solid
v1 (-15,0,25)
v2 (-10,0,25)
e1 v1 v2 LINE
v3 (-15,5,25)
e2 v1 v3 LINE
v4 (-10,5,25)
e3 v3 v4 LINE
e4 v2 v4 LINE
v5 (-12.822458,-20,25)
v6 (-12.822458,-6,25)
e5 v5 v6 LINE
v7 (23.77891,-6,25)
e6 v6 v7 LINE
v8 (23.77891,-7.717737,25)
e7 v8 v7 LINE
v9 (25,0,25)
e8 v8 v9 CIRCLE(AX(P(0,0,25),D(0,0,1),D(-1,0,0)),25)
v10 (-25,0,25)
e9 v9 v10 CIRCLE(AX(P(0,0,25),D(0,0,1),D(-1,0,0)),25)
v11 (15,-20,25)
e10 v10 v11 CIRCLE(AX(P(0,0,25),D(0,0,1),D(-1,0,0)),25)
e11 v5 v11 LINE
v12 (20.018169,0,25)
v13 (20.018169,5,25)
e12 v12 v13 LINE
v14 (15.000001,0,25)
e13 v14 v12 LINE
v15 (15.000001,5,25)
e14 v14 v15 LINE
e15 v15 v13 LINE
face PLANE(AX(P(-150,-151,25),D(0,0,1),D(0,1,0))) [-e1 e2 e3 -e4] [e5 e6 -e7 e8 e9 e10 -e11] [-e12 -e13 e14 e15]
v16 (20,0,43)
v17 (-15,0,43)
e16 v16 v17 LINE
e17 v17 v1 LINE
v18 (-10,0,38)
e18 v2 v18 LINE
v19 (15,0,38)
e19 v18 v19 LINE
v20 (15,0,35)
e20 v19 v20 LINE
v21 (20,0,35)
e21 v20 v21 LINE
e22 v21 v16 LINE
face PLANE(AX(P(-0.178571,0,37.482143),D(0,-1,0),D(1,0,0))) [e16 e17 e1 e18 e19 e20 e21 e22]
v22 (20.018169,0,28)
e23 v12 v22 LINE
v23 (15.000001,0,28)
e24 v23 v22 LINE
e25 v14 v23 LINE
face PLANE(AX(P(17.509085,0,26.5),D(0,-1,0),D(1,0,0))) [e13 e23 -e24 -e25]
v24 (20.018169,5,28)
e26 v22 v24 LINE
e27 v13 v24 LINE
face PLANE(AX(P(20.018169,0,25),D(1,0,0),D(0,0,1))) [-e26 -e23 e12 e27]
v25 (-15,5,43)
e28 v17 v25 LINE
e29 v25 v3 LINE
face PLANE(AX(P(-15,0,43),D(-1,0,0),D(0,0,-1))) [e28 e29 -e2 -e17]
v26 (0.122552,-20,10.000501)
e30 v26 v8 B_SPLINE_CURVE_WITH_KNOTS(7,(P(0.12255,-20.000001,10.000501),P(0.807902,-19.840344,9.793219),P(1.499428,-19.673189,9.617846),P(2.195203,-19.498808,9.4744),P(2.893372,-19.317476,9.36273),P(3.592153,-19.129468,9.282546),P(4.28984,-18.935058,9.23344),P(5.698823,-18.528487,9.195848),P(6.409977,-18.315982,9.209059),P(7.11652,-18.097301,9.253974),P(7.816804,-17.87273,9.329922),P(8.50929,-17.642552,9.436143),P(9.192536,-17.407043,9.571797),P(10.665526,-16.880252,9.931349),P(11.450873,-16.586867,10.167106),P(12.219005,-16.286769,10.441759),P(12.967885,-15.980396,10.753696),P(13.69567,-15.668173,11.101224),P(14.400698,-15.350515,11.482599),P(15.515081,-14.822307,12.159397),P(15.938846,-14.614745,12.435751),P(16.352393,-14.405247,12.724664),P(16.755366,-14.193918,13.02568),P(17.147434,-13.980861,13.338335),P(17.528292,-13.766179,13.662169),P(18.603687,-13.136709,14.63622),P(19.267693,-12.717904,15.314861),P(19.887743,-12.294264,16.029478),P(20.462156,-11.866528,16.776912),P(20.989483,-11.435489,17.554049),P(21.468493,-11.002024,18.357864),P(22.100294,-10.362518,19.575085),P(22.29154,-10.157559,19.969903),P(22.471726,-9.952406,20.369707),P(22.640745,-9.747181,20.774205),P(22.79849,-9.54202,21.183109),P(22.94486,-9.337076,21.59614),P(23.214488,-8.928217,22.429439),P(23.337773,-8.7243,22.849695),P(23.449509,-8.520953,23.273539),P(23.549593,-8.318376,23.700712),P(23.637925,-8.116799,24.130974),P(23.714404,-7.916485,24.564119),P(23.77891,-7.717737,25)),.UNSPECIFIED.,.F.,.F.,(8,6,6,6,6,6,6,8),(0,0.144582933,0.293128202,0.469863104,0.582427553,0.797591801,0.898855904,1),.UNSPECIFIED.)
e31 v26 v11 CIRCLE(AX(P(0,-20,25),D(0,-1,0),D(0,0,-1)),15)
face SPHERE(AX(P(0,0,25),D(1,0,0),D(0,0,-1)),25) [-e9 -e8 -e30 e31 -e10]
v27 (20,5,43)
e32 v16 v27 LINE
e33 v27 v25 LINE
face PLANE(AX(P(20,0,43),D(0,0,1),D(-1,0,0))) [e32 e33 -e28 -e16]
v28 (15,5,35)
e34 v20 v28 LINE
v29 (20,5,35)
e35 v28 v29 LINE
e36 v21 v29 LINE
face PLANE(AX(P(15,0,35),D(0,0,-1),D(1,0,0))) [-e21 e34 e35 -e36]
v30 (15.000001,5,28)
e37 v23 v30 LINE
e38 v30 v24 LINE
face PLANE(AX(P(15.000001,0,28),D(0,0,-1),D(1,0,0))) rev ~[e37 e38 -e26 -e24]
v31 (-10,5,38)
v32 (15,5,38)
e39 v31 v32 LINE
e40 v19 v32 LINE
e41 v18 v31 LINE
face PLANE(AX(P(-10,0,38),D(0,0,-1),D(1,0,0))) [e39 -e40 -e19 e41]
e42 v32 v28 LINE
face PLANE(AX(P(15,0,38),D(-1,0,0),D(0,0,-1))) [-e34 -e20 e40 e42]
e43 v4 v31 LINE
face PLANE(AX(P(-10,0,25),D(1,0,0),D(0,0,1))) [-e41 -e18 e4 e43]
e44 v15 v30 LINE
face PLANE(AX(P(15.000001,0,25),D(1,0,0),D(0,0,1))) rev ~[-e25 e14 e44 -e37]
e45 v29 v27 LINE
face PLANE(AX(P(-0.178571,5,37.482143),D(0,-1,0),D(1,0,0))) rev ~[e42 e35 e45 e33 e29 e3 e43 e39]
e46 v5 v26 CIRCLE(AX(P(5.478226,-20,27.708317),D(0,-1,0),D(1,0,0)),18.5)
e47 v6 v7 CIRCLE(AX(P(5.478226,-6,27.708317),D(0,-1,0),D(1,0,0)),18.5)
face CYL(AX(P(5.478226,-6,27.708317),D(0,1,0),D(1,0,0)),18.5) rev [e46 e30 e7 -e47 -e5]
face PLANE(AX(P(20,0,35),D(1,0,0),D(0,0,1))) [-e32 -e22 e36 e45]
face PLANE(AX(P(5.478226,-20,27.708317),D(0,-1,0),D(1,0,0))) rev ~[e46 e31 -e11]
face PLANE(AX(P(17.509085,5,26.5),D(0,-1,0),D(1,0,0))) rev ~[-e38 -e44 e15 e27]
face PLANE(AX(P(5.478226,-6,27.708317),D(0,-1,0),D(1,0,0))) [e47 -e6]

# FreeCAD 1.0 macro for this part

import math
import FreeCAD as App
import Part
import Sketcher

doc = App.newDocument("Part")
params = doc.addObject("Spreadsheet::Sheet", "Params")
for row, (alias, value) in enumerate([
    ("sketch1_diameter", "37 mm"),
    ("pad1_length", "14 mm"),
    ("sketch2_height", "3 mm"),
    ("pad2_length", "5 mm"),
    ("sketch3_width", "210 mm"),
    ("sketch3_height", "320 mm"),
    ("pad3_length", "320 mm"),
    ("sketch4_radius", "150 mm"),
    ("revolution_angle", "360 deg"),
    ("sketch5_radius", "25 mm"),
    ("revolution2_angle", "360 deg"),
    ("sketch6_width", "25 mm"),
    ("sketch6_width2", "5 mm"),
    ("sketch6_height", "3 mm"),
    ("sketch6_height2", "8 mm"),
    ("sketch6_height3", "18 mm"),
    ("pad4_length", "5 mm"),
], start=1):
    params.set(f"A{row}", alias)
    params.set(f"B{row}", "=" + value)
    params.setAlias(f"B{row}", alias)

body = doc.addObject("PartDesign::Body", "Body")

sketch1 = body.newObject("Sketcher::SketchObject", "Sketch")
sketch1.AttachmentSupport = (doc.getObject("XY_Plane"), [""])
sketch1.MapMode = "FlatFace"
sketch1.addGeometry(Part.Circle(App.Vector(53, 37, 0), App.Vector(0, 0, 1), 18), False)
sketch1.addConstraint(Sketcher.Constraint("Diameter", 0, 37.0))
sketch1.addConstraint(Sketcher.Constraint("DistanceX", -1, 1, 0, 3, 53.478226))
sketch1.addConstraint(Sketcher.Constraint("DistanceY", -1, 1, 0, 3, 36.958317))
sketch1.setExpression("Constraints[0]", "Params.sketch1_diameter")
pad1 = body.newObject("PartDesign::Pad", "Pad")
pad1.Profile = sketch1
pad1.setExpression("Length", "Params.pad1_length")
body2 = doc.addObject("PartDesign::Body", "Body001")
doc.recompute()

body.Placement = App.Placement(App.Vector(-48, -6, -9.25), App.Rotation(App.Vector(1, 0, 0), 90))
boolean = body2.newObject("PartDesign::Boolean", "Boolean")
boolean.Type = "Fuse"
boolean.addObjects([body])
body3 = doc.addObject("PartDesign::Body", "Body002")

sketch2 = body3.newObject("Sketcher::SketchObject", "Sketch001")
sketch2.AttachmentSupport = (doc.getObject("XZ_Plane002"), [""])
sketch2.MapMode = "FlatFace"
sketch2.addGeometry(Part.LineSegment(App.Vector(25, -10, 0), App.Vector(25, -13, 0)), False)
sketch2.addGeometry(Part.LineSegment(App.Vector(25, -13, 0), App.Vector(30, -13, 0)), False)
sketch2.addGeometry(Part.LineSegment(App.Vector(30, -13, 0), App.Vector(30, -10, 0)), False)
sketch2.addGeometry(Part.LineSegment(App.Vector(30, -10, 0), App.Vector(25, -10, 0)), False)
sketch2.addConstraint(Sketcher.Constraint("Coincident", 0, 2, 1, 1))
sketch2.addConstraint(Sketcher.Constraint("Coincident", 1, 2, 2, 1))
sketch2.addConstraint(Sketcher.Constraint("Coincident", 2, 2, 3, 1))
sketch2.addConstraint(Sketcher.Constraint("Coincident", 3, 2, 0, 1))
sketch2.addConstraint(Sketcher.Constraint("Vertical", 0))
sketch2.addConstraint(Sketcher.Constraint("Horizontal", 1))
sketch2.addConstraint(Sketcher.Constraint("Vertical", 2))
sketch2.addConstraint(Sketcher.Constraint("Horizontal", 3))
sketch2.addConstraint(Sketcher.Constraint("DistanceY", 0, 2, 0, 1, 3.0))
sketch2.addConstraint(Sketcher.Constraint("DistanceX", -1, 1, 0, 2, 25.0))
sketch2.addConstraint(Sketcher.Constraint("DistanceY", 0, 2, -1, 1, 13.0))
sketch2.addConstraint(Sketcher.Constraint("DistanceX", 1, 1, 1, 2, 5.018169))
sketch2.setExpression("Constraints[8]", "Params.sketch2_height")
pad2 = body3.newObject("PartDesign::Pad", "Pad001")
pad2.Profile = sketch2
pad2.setExpression("Length", "Params.pad2_length")
pad2.Reversed = True
body4 = doc.addObject("PartDesign::Body", "Body003")

sketch3 = body4.newObject("Sketcher::SketchObject", "Sketch002")
sketch3.AttachmentSupport = (doc.getObject("XY_Plane003"), [""])
sketch3.MapMode = "FlatFace"
sketch3.AttachmentOffset = App.Placement(App.Vector(0, 0, -150), App.Rotation())
sketch3.addGeometry(Part.LineSegment(App.Vector(0, 169, 0), App.Vector(0, -151, 0)), False)
sketch3.addGeometry(Part.LineSegment(App.Vector(0, -151, 0), App.Vector(210, -151, 0)), False)
sketch3.addGeometry(Part.LineSegment(App.Vector(210, -151, 0), App.Vector(210, 169, 0)), False)
sketch3.addGeometry(Part.LineSegment(App.Vector(210, 169, 0), App.Vector(0, 169, 0)), False)
sketch3.addConstraint(Sketcher.Constraint("Coincident", 0, 2, 1, 1))
sketch3.addConstraint(Sketcher.Constraint("Coincident", 1, 2, 2, 1))
sketch3.addConstraint(Sketcher.Constraint("Coincident", 2, 2, 3, 1))
sketch3.addConstraint(Sketcher.Constraint("Coincident", 3, 2, 0, 1))
sketch3.addConstraint(Sketcher.Constraint("Vertical", 0))
sketch3.addConstraint(Sketcher.Constraint("Horizontal", 1))
sketch3.addConstraint(Sketcher.Constraint("Vertical", 2))
sketch3.addConstraint(Sketcher.Constraint("Horizontal", 3))
sketch3.addConstraint(Sketcher.Constraint("PointOnObject", 0, 2, -2))
sketch3.addConstraint(Sketcher.Constraint("DistanceX", 1, 1, 1, 2, 210.0))
sketch3.addConstraint(Sketcher.Constraint("DistanceY", 0, 2, 0, 1, 320.0))
sketch3.addConstraint(Sketcher.Constraint("DistanceY", 0, 2, -1, 1, 151.0))
sketch3.setExpression("Constraints[9]", "Params.sketch3_width")
sketch3.setExpression("Constraints[10]", "Params.sketch3_height")
pad3 = body4.newObject("PartDesign::Pad", "Pad002")
pad3.Profile = sketch3
pad3.setExpression("Length", "Params.pad3_length")
body5 = doc.addObject("PartDesign::Body", "Body004")

sketch4 = body5.newObject("Sketcher::SketchObject", "Sketch003")
sketch4.AttachmentSupport = (doc.getObject("XZ_Plane004"), [""])
sketch4.MapMode = "FlatFace"
sketch4.addGeometry(Part.ArcOfCircle(Part.Circle(App.Vector(0, 0, 0), App.Vector(0, 0, 1), 150), math.radians(-90), math.radians(90)), False)
sketch4.addGeometry(Part.LineSegment(App.Vector(0, 150, 0), App.Vector(0, -150, 0)), False)
sketch4.addConstraint(Sketcher.Constraint("Coincident", 0, 1, 1, 2))
sketch4.addConstraint(Sketcher.Constraint("Coincident", 1, 1, 0, 2))
sketch4.addConstraint(Sketcher.Constraint("Vertical", 1))
sketch4.addConstraint(Sketcher.Constraint("Coincident", 0, 3, -1, 1))
sketch4.addConstraint(Sketcher.Constraint("PointOnObject", 0, 1, -2))
sketch4.addConstraint(Sketcher.Constraint("Radius", 0, 150.0))
sketch4.setExpression("Constraints[5]", "Params.sketch4_radius")
revolution = body5.newObject("PartDesign::Revolution", "Revolution")
revolution.Profile = sketch4
revolution.ReferenceAxis = (sketch4, ["V_Axis"])
revolution.setExpression("Angle", "Params.revolution_angle")
doc.recompute()

boolean2 = body5.newObject("PartDesign::Boolean", "Boolean001")
boolean2.Type = "Cut"
boolean2.addObjects([body4])
body6 = doc.addObject("PartDesign::Body", "Body005")

sketch5 = body6.newObject("Sketcher::SketchObject", "Sketch004")
sketch5.AttachmentSupport = (doc.getObject("XZ_Plane005"), [""])
sketch5.MapMode = "FlatFace"
sketch5.addGeometry(Part.ArcOfCircle(Part.Circle(App.Vector(0, 0, 0), App.Vector(0, 0, 1), 25), math.radians(-90), math.radians(90)), False)
sketch5.addGeometry(Part.LineSegment(App.Vector(0, 25, 0), App.Vector(0, -25, 0)), False)
sketch5.addConstraint(Sketcher.Constraint("Coincident", 0, 1, 1, 2))
sketch5.addConstraint(Sketcher.Constraint("Coincident", 1, 1, 0, 2))
sketch5.addConstraint(Sketcher.Constraint("Vertical", 1))
sketch5.addConstraint(Sketcher.Constraint("Coincident", 0, 3, -1, 1))
sketch5.addConstraint(Sketcher.Constraint("PointOnObject", 0, 1, -2))
sketch5.addConstraint(Sketcher.Constraint("Radius", 0, 25.0))
sketch5.setExpression("Constraints[5]", "Params.sketch5_radius")
revolution2 = body6.newObject("PartDesign::Revolution", "Revolution001")
revolution2.Profile = sketch5
revolution2.ReferenceAxis = (sketch5, ["V_Axis"])
revolution2.setExpression("Angle", "Params.revolution2_angle")
doc.recompute()

boolean3 = body6.newObject("PartDesign::Boolean", "Boolean002")
boolean3.Type = "Cut"
boolean3.addObjects([body5])
body7 = doc.addObject("PartDesign::Body", "Body006")
doc.recompute()

body6.Placement = App.Placement(App.Vector(10, 0, -13), App.Rotation(App.Vector(0, 1, 0), 90))
boolean4 = body7.newObject("PartDesign::Boolean", "Boolean003")
boolean4.Type = "Fuse"
boolean4.addObjects([body6])
body8 = doc.addObject("PartDesign::Body", "Body007")

sketch6 = body8.newObject("Sketcher::SketchObject", "Sketch005")
sketch6.AttachmentSupport = (doc.getObject("XZ_Plane007"), [""])
sketch6.MapMode = "FlatFace"
sketch6.addGeometry(Part.LineSegment(App.Vector(0, 0, 0), App.Vector(25, 0, 0)), False)
sketch6.addGeometry(Part.LineSegment(App.Vector(25, 0, 0), App.Vector(25, -3, 0)), False)
sketch6.addGeometry(Part.LineSegment(App.Vector(25, -3, 0), App.Vector(30, -3, 0)), False)
sketch6.addGeometry(Part.LineSegment(App.Vector(30, -3, 0), App.Vector(30, 5, 0)), False)
sketch6.addGeometry(Part.LineSegment(App.Vector(30, 5, 0), App.Vector(-5, 5, 0)), False)
sketch6.addGeometry(Part.LineSegment(App.Vector(-5, 5, 0), App.Vector(-5, -13, 0)), False)
sketch6.addGeometry(Part.LineSegment(App.Vector(-5, -13, 0), App.Vector(0, -13, 0)), False)
sketch6.addGeometry(Part.LineSegment(App.Vector(0, -13, 0), App.Vector(0, 0, 0)), False)
sketch6.addConstraint(Sketcher.Constraint("Coincident", 0, 2, 1, 1))
sketch6.addConstraint(Sketcher.Constraint("Coincident", 1, 2, 2, 1))
sketch6.addConstraint(Sketcher.Constraint("Coincident", 2, 2, 3, 1))
sketch6.addConstraint(Sketcher.Constraint("Coincident", 3, 2, 4, 1))
sketch6.addConstraint(Sketcher.Constraint("Coincident", 4, 2, 5, 1))
sketch6.addConstraint(Sketcher.Constraint("Coincident", 5, 2, 6, 1))
sketch6.addConstraint(Sketcher.Constraint("Coincident", 6, 2, 7, 1))
sketch6.addConstraint(Sketcher.Constraint("Coincident", 7, 2, 0, 1))
sketch6.addConstraint(Sketcher.Constraint("Horizontal", 0))
sketch6.addConstraint(Sketcher.Constraint("Vertical", 1))
sketch6.addConstraint(Sketcher.Constraint("Horizontal", 2))
sketch6.addConstraint(Sketcher.Constraint("Vertical", 3))
sketch6.addConstraint(Sketcher.Constraint("Horizontal", 4))
sketch6.addConstraint(Sketcher.Constraint("Vertical", 5))
sketch6.addConstraint(Sketcher.Constraint("Horizontal", 6))
sketch6.addConstraint(Sketcher.Constraint("Vertical", 7))
sketch6.addConstraint(Sketcher.Constraint("Coincident", 7, 2, -1, 1))
sketch6.addConstraint(Sketcher.Constraint("Equal", 2, 6))
sketch6.addConstraint(Sketcher.Constraint("DistanceX", 0, 1, 0, 2, 25.0))
sketch6.addConstraint(Sketcher.Constraint("DistanceX", 2, 1, 2, 2, 5.0))
sketch6.addConstraint(Sketcher.Constraint("DistanceY", 1, 2, 1, 1, 3.0))
sketch6.addConstraint(Sketcher.Constraint("DistanceY", 3, 1, 3, 2, 8.0))
sketch6.addConstraint(Sketcher.Constraint("DistanceY", 5, 2, 5, 1, 18.0))
sketch6.setExpression("Constraints[18]", "Params.sketch6_width")
sketch6.setExpression("Constraints[19]", "Params.sketch6_width2")
sketch6.setExpression("Constraints[20]", "Params.sketch6_height")
sketch6.setExpression("Constraints[21]", "Params.sketch6_height2")
sketch6.setExpression("Constraints[22]", "Params.sketch6_height3")
pad4 = body8.newObject("PartDesign::Pad", "Pad003")
pad4.Profile = sketch6
pad4.setExpression("Length", "Params.pad4_length")
pad4.Reversed = True
doc.recompute()

boolean5 = body8.newObject("PartDesign::Boolean", "Boolean004")
boolean5.Type = "Fuse"
boolean5.addObjects([body7])
doc.recompute()

boolean6 = body8.newObject("PartDesign::Boolean", "Boolean005")
boolean6.Type = "Fuse"
boolean6.addObjects([body3])
body9 = doc.addObject("PartDesign::Body", "Body008")
doc.recompute()

body8.Placement = App.Placement(App.Vector(-10, 0, 38), App.Rotation(App.Vector(0, 0, 1), 0))
boolean7 = body9.newObject("PartDesign::Boolean", "Boolean006")
boolean7.Type = "Fuse"
boolean7.addObjects([body8])
doc.recompute()

boolean8 = body9.newObject("PartDesign::Boolean", "Boolean007")
boolean8.Type = "Cut"
boolean8.addObjects([body2])

doc.recompute()
